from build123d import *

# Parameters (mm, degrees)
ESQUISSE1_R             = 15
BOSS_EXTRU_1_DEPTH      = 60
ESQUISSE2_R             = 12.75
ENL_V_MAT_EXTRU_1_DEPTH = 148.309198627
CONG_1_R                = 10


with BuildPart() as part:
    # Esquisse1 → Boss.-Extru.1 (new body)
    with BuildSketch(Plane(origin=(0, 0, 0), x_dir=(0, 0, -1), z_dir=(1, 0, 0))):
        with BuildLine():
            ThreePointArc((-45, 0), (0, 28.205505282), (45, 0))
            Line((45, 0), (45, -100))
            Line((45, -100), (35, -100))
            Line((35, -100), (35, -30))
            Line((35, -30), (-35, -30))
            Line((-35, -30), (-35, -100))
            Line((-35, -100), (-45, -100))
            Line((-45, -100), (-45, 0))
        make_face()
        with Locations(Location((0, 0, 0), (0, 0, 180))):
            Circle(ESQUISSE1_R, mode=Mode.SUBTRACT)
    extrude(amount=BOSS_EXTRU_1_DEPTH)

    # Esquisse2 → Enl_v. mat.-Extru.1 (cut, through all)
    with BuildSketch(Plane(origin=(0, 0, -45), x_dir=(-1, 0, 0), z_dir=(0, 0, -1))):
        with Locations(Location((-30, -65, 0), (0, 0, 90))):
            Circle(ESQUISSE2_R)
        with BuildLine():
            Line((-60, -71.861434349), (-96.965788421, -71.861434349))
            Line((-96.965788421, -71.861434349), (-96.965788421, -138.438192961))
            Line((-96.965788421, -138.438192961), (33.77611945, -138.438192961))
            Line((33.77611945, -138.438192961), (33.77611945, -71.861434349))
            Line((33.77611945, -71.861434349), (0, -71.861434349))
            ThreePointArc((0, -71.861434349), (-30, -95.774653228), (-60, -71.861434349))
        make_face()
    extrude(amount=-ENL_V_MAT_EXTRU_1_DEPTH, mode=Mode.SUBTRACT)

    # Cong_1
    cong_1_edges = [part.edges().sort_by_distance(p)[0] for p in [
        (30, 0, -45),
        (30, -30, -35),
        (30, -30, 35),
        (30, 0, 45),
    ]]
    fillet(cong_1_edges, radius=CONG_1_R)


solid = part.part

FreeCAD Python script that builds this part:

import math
import FreeCAD as App
import Part
import Sketcher

V = App.Vector
Q = App.Units.Quantity


def edges_at(feature, points):
    """Names of the edges that pass closest to the given points."""
    edges = feature.Shape.Edges
    near = lambda p: min(range(len(edges)), key=lambda i: edges[i].distToShape(Part.Vertex(*p))[0])
    return sorted({f"Edge{near(p) + 1}" for p in points})

doc = App.newDocument("Part")
params = doc.addObject("Spreadsheet::Sheet", "Params")
for row, (alias, value) in enumerate([
    ("sketch1_diameter", "30 mm"),
    ("sketch1_radius", "50 mm"),
    ("sketch1_width", "100 mm"),
    ("sketch1_width2", "70 mm"),
    ("sketch1_height", "10 mm"),
    ("pad1_length", "60 mm"),
    ("sketch2_diameter", "25.5 mm"),
    ("fillet_radius", "10 mm"),
], start=1):
    params.set(f"A{row}", alias)
    params.set(f"B{row}", "=" + value)
    params.setAlias(f"B{row}", alias)

body = doc.addObject("PartDesign::Body", "Body")

sketch1 = body.newObject("Sketcher::SketchObject", "Sketch")
sketch1.AttachmentSupport = (doc.getObject("YZ_Plane"), [""])
sketch1.MapMode = "FlatFace"
sketch1.addGeometry([
    Part.ArcOfCircle(Part.Circle(V(-22, 0, 0), V(0, 0, 1), 50), math.radians(-64), math.radians(64)),
    Part.LineSegment(V(0, 45, 0), V(-100, 45, 0)),
    Part.LineSegment(V(-100, 45, 0), V(-100, 35, 0)),
    Part.LineSegment(V(-100, 35, 0), V(-30, 35, 0)),
    Part.LineSegment(V(-30, 35, 0), V(-30, -35, 0)),
    Part.LineSegment(V(-30, -35, 0), V(-100, -35, 0)),
    Part.LineSegment(V(-100, -35, 0), V(-100, -45, 0)),
    Part.LineSegment(V(-100, -45, 0), V(0, -45, 0)),
    Part.Circle(V(0, 0, 0), V(0, 0, 1), 15),
], False)
sketch1.addConstraint([
    Sketcher.Constraint("Coincident", 0, 2, 1, 1),
    Sketcher.Constraint("Coincident", 1, 2, 2, 1),
    Sketcher.Constraint("Coincident", 2, 2, 3, 1),
    Sketcher.Constraint("Coincident", 3, 2, 4, 1),
    Sketcher.Constraint("Coincident", 4, 2, 5, 1),
    Sketcher.Constraint("Coincident", 5, 2, 6, 1),
    Sketcher.Constraint("Coincident", 6, 2, 7, 1),
    Sketcher.Constraint("Coincident", 7, 2, 0, 1),
    Sketcher.Constraint("Horizontal", 1),
    Sketcher.Constraint("Vertical", 2),
    Sketcher.Constraint("Horizontal", 3),
    Sketcher.Constraint("Vertical", 4),
    Sketcher.Constraint("Horizontal", 5),
    Sketcher.Constraint("Vertical", 6),
    Sketcher.Constraint("Horizontal", 7),
    Sketcher.Constraint("Coincident", 8, 3, -1, 1),
    Sketcher.Constraint("Symmetric", 0, 2, 7, 2, -1, 1),
    Sketcher.Constraint("Symmetric", 2, 2, 5, 2, -1),
    Sketcher.Constraint("PointOnObject", 0, 3, -1),
    Sketcher.Constraint("Equal", 5, 4),
    Sketcher.Constraint("Diameter", 8, Q("30 mm")),
    Sketcher.Constraint("Radius", 0, Q("50 mm")),
    Sketcher.Constraint("DistanceX", 1, 2, 1, 1, Q("100 mm")),
    Sketcher.Constraint("DistanceX", 3, 1, 3, 2, Q("70 mm")),
    Sketcher.Constraint("DistanceY", 2, 2, 2, 1, Q("10 mm")),
])
sketch1.setExpression("Constraints[20]", "Params.sketch1_diameter")
sketch1.setExpression("Constraints[21]", "Params.sketch1_radius")
sketch1.setExpression("Constraints[22]", "Params.sketch1_width")
sketch1.setExpression("Constraints[23]", "Params.sketch1_width2")
sketch1.setExpression("Constraints[24]", "Params.sketch1_height")
pad1 = body.newObject("PartDesign::Pad", "Pad")
pad1.Profile = sketch1
pad1.setExpression("Length", "Params.pad1_length")

sketch2 = body.newObject("Sketcher::SketchObject", "Sketch001")
sketch2.AttachmentSupport = (doc.getObject("XY_Plane"), [""])
sketch2.MapMode = "FlatFace"
sketch2.AttachmentOffset = App.Placement(V(0, 0, -45), App.Rotation())
sketch2.addGeometry([
    Part.Circle(V(30, -65, 0), V(0, 0, 1), 13),
    Part.LineSegment(V(60, -72, 0), V(97, -72, 0)),
    Part.LineSegment(V(97, -72, 0), V(97, -138, 0)),
    Part.LineSegment(V(97, -138, 0), V(-34, -138, 0)),
    Part.LineSegment(V(-34, -138, 0), V(-34, -72, 0)),
    Part.LineSegment(V(-34, -72, 0), V(0, -72, 0)),
    Part.ArcOfCircle(Part.Circle(V(30, -65, 0), V(0, 0, 1), 31), math.radians(-167), math.radians(-13)),
], False)
sketch2.addConstraint([
    Sketcher.Constraint("Coincident", 1, 2, 2, 1),
    Sketcher.Constraint("Coincident", 2, 2, 3, 1),
    Sketcher.Constraint("Coincident", 3, 2, 4, 1),
    Sketcher.Constraint("Coincident", 4, 2, 5, 1),
    Sketcher.Constraint("Coincident", 5, 2, 6, 1),
    Sketcher.Constraint("Coincident", 6, 2, 1, 1),
    Sketcher.Constraint("Horizontal", 1),
    Sketcher.Constraint("Vertical", 2),
    Sketcher.Constraint("Horizontal", 3),
    Sketcher.Constraint("Vertical", 4),
    Sketcher.Constraint("Horizontal", 5),
    Sketcher.Constraint("Coincident", 6, 3, 0, 3),
    Sketcher.Constraint("PointOnObject", 5, 2, -2),
    Sketcher.Constraint("Horizontal", 1, 2, 4, 2),
    Sketcher.Constraint("Diameter", 0, Q("25.5 mm")),
    Sketcher.Constraint("DistanceX", -1, 1, 0, 3, Q("30 mm")),
    Sketcher.Constraint("DistanceY", 0, 3, -1, 1, Q("65 mm")),
    Sketcher.Constraint("Radius", 6, Q("30.774653 mm")),
    Sketcher.Constraint("DistanceX", 1, 1, 1, 2, Q("36.965788 mm")),
    Sketcher.Constraint("DistanceX", 5, 1, 5, 2, Q("33.776119 mm")),
    Sketcher.Constraint("DistanceY", 2, 2, 2, 1, Q("66.576759 mm")),
])
sketch2.setExpression("Constraints[14]", "Params.sketch2_diameter")
pocket1 = body.newObject("PartDesign::Pocket", "Pocket")
pocket1.Profile = sketch2
pocket1.Type = "ThroughAll"
pocket1.Reversed = True
doc.recompute()

fillet = body.newObject("PartDesign::Fillet", "Fillet")
fillet.Base = (pocket1, edges_at(pocket1, [
    (30, 0, -45),
    (30, -30, -35),
    (30, -30, 35),
    (30, 0, 45),
]))
fillet.setExpression("Radius", "Params.fillet_radius")

doc.recompute()
